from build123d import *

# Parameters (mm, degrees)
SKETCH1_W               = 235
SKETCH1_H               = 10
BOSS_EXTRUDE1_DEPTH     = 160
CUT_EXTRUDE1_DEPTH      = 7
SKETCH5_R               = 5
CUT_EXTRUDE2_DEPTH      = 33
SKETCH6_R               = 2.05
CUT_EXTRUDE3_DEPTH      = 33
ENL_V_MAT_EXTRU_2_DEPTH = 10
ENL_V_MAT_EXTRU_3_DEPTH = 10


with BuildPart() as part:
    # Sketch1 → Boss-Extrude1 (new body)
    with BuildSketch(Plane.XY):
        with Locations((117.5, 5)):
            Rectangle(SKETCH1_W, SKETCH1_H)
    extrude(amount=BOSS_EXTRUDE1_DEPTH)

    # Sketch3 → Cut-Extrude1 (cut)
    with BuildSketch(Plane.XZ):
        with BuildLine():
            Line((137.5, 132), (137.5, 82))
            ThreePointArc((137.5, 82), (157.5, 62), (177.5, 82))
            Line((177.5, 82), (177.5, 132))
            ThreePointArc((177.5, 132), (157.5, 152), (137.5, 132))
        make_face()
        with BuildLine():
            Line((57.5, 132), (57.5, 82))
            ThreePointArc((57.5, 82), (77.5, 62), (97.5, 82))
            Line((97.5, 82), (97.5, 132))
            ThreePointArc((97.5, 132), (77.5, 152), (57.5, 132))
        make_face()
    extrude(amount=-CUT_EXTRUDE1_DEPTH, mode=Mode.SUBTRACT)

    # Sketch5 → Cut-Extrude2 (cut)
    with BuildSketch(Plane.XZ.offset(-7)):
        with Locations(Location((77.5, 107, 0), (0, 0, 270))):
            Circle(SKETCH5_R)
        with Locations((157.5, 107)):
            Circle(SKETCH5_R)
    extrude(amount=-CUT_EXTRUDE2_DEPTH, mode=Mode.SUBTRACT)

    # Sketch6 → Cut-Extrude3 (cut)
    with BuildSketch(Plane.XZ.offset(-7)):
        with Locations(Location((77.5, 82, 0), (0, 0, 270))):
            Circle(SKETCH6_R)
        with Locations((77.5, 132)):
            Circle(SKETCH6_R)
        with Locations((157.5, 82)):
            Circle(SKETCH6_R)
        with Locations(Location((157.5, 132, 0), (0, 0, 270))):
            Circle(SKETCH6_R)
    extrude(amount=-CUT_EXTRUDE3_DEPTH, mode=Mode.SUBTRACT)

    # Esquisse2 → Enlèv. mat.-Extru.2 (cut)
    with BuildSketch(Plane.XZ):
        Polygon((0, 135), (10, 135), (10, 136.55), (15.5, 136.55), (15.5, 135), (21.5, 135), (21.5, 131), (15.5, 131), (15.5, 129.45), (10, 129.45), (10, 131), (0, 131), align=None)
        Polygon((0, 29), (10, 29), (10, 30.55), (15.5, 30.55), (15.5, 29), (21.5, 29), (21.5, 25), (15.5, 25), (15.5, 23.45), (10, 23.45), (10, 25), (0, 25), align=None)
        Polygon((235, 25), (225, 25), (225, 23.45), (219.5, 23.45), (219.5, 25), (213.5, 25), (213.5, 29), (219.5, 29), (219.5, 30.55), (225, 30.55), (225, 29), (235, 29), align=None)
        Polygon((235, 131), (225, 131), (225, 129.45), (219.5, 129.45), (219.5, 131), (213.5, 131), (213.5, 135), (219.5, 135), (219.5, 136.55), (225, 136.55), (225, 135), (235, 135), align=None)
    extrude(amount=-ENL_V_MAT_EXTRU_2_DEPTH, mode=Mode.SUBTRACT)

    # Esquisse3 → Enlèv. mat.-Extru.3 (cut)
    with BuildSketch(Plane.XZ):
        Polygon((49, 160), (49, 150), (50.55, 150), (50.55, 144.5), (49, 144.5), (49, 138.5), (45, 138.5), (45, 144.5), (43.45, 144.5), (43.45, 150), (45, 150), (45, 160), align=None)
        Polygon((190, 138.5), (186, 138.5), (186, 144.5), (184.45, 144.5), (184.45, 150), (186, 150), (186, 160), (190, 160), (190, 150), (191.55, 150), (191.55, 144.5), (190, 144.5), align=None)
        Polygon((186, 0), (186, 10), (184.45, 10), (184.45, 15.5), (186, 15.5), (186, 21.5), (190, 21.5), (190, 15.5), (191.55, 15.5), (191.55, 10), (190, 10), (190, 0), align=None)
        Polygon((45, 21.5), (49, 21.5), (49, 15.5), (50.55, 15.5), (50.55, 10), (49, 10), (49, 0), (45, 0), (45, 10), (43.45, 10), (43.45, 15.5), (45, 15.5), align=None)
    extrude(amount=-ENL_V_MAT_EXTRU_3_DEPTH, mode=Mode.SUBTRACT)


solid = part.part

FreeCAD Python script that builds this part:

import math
import FreeCAD as App
import Part
import Sketcher

V = App.Vector
Q = App.Units.Quantity


def add_polygon(sketch, points):
    """Adds a closed chain of lines whose ends are joined by coincident constraints."""
    first, n = sketch.GeometryCount, len(points)
    for a, b in zip(points, points[1:] + points[:1]):
        sketch.addGeometry(Part.LineSegment(App.Vector(*a, 0), App.Vector(*b, 0)), False)
    for i in range(n):
        sketch.addConstraint(Sketcher.Constraint("Coincident", first + i, 2, first + (i + 1) % n, 1))

doc = App.newDocument("Part")
body = doc.addObject("PartDesign::Body", "Body")

sketch1 = body.newObject("Sketcher::SketchObject", "Sketch")
sketch1.AttachmentSupport = (doc.getObject("XY_Plane"), [""])
sketch1.MapMode = "FlatFace"
add_polygon(sketch1, [(0, 10), (0, 0), (235, 0), (235, 10)])
sketch1.addConstraint([
    Sketcher.Constraint("Vertical", 0),
    Sketcher.Constraint("Horizontal", 1),
    Sketcher.Constraint("Vertical", 2),
    Sketcher.Constraint("Horizontal", 3),
    Sketcher.Constraint("Coincident", 0, 2, -1, 1),
    Sketcher.Constraint("DistanceX", 1, 1, 1, 2, Q("235 mm")),
    Sketcher.Constraint("DistanceY", 0, 2, 0, 1, Q("10 mm")),
])
pad1 = body.newObject("PartDesign::Pad", "Pad")
pad1.Profile = sketch1
pad1.Length = 160

sketch2 = body.newObject("Sketcher::SketchObject", "Sketch001")
sketch2.AttachmentSupport = (doc.getObject("XZ_Plane"), [""])
sketch2.MapMode = "FlatFace"
sketch2.addGeometry([
    Part.LineSegment(V(138, 132, 0), V(138, 82, 0)),
    Part.ArcOfCircle(Part.Circle(V(158, 82, 0), V(0, 0, 1), 20), math.radians(180), math.radians(360)),
    Part.LineSegment(V(178, 82, 0), V(178, 132, 0)),
    Part.ArcOfCircle(Part.Circle(V(158, 132, 0), V(0, 0, 1), 20), math.radians(0), math.radians(180)),
    Part.LineSegment(V(58, 132, 0), V(58, 82, 0)),
    Part.ArcOfCircle(Part.Circle(V(78, 82, 0), V(0, 0, 1), 20), math.radians(180), math.radians(360)),
    Part.LineSegment(V(98, 82, 0), V(98, 132, 0)),
    Part.ArcOfCircle(Part.Circle(V(78, 132, 0), V(0, 0, 1), 20), math.radians(0), math.radians(180)),
], False)
sketch2.addConstraint([
    Sketcher.Constraint("Tangent", 0, 2, 1, 1),
    Sketcher.Constraint("Tangent", 1, 2, 2, 1),
    Sketcher.Constraint("Tangent", 2, 2, 3, 1),
    Sketcher.Constraint("Tangent", 3, 2, 0, 1),
    Sketcher.Constraint("Tangent", 4, 2, 5, 1),
    Sketcher.Constraint("Tangent", 5, 2, 6, 1),
    Sketcher.Constraint("Tangent", 6, 2, 7, 1),
    Sketcher.Constraint("Tangent", 7, 2, 4, 1),
    Sketcher.Constraint("Vertical", 0),
    Sketcher.Constraint("Vertical", 2),
    Sketcher.Constraint("Vertical", 4),
    Sketcher.Constraint("Vertical", 6),
    Sketcher.Constraint("Equal", 3, 5),
    Sketcher.Constraint("Horizontal", 1, 3, 5, 3),
    Sketcher.Constraint("Horizontal", 3, 3, 7, 3),
    Sketcher.Constraint("Radius", 1, Q("20 mm")),
    Sketcher.Constraint("DistanceY", 0, 2, 0, 1, Q("50 mm")),
    Sketcher.Constraint("DistanceY", -1, 1, 1, 3, Q("82 mm")),
    Sketcher.Constraint("DistanceX", 5, 3, 1, 3, Q("80 mm")),
    Sketcher.Constraint("DistanceX", -1, 1, 1, 3, Q("157.5 mm")),
])
pocket1 = body.newObject("PartDesign::Pocket", "Pocket")
pocket1.Profile = sketch2
pocket1.Length = 7

sketch3 = body.newObject("Sketcher::SketchObject", "Sketch002")
sketch3.AttachmentSupport = (doc.getObject("XZ_Plane"), [""])
sketch3.MapMode = "FlatFace"
sketch3.AttachmentOffset = App.Placement(V(0, 0, -7), App.Rotation())
sketch3.addGeometry([
    Part.Circle(V(78, 107, 0), V(0, 0, 1), 5),
    Part.Circle(V(158, 107, 0), V(0, 0, 1), 5),
], False)
sketch3.addConstraint([
    Sketcher.Constraint("Equal", 0, 1),
    Sketcher.Constraint("Horizontal", 0, 3, 1, 3),
    Sketcher.Constraint("Diameter", 0, Q("10 mm")),
    Sketcher.Constraint("DistanceY", -1, 1, 0, 3, Q("107 mm")),
    Sketcher.Constraint("DistanceX", 0, 3, 1, 3, Q("80 mm")),
    Sketcher.Constraint("DistanceX", -1, 1, 0, 3, Q("77.5 mm")),
])
pocket2 = body.newObject("PartDesign::Pocket", "Pocket001")
pocket2.Profile = sketch3
pocket2.Length = 33

sketch4 = body.newObject("Sketcher::SketchObject", "Sketch003")
sketch4.AttachmentSupport = (doc.getObject("XZ_Plane"), [""])
sketch4.MapMode = "FlatFace"
sketch4.AttachmentOffset = App.Placement(V(0, 0, -7), App.Rotation())
sketch4.addGeometry([
    Part.Circle(V(77.5, 82, 0), V(0, 0, 1), 2),
    Part.Circle(V(77.5, 132, 0), V(0, 0, 1), 2),
    Part.Circle(V(157.5, 82, 0), V(0, 0, 1), 2),
    Part.Circle(V(157.5, 132, 0), V(0, 0, 1), 2),
], False)
sketch4.addConstraint([
    Sketcher.Constraint("Equal", 0, 1),
    Sketcher.Constraint("Equal", 1, 2),
    Sketcher.Constraint("Equal", 2, 3),
    Sketcher.Constraint("Horizontal", 0, 3, 2, 3),
    Sketcher.Constraint("Horizontal", 1, 3, 3, 3),
    Sketcher.Constraint("Vertical", 0, 3, 1, 3),
    Sketcher.Constraint("Vertical", 2, 3, 3, 3),
    Sketcher.Constraint("Diameter", 0, Q("4.1 mm")),
    Sketcher.Constraint("DistanceY", -1, 1, 0, 3, Q("82 mm")),
    Sketcher.Constraint("DistanceY", -1, 1, 1, 3, Q("132 mm")),
    Sketcher.Constraint("DistanceX", 0, 3, 2, 3, Q("80 mm")),
    Sketcher.Constraint("DistanceX", -1, 1, 0, 3, Q("77.5 mm")),
])
pocket3 = body.newObject("PartDesign::Pocket", "Pocket002")
pocket3.Profile = sketch4
pocket3.Length = 33

sketch5 = body.newObject("Sketcher::SketchObject", "Sketch004")
sketch5.AttachmentSupport = (doc.getObject("XZ_Plane"), [""])
sketch5.MapMode = "FlatFace"
add_polygon(sketch5, [(10, 135), (0, 135), (0, 131), (10, 131), (10, 129.4), (15.5, 129.4), (15.5, 131), (21.5, 131), (21.5, 135), (15.5, 135), (15.5, 136.6), (10, 136.6)])
add_polygon(sketch5, [(10, 29), (0, 29), (0, 25), (10, 25), (10, 23.4), (15.5, 23.4), (15.5, 25), (21.5, 25), (21.5, 29), (15.5, 29), (15.5, 30.6), (10, 30.6)])
add_polygon(sketch5, [(225, 25), (235, 25), (235, 29), (225, 29), (225, 30.6), (219.5, 30.6), (219.5, 29), (213.5, 29), (213.5, 25), (219.5, 25), (219.5, 23.4), (225, 23.4)])
add_polygon(sketch5, [(225, 131), (235, 131), (235, 135), (225, 135), (225, 136.6), (219.5, 136.6), (219.5, 135), (213.5, 135), (213.5, 131), (219.5, 131), (219.5, 129.4), (225, 129.4)])
sketch5.addConstraint([
    Sketcher.Constraint("Horizontal", 0),
    Sketcher.Constraint("Vertical", 1),
    Sketcher.Constraint("Horizontal", 2),
    Sketcher.Constraint("Vertical", 3),
    Sketcher.Constraint("Horizontal", 4),
    Sketcher.Constraint("Vertical", 5),
    Sketcher.Constraint("Horizontal", 6),
    Sketcher.Constraint("Vertical", 7),
    Sketcher.Constraint("Horizontal", 8),
    Sketcher.Constraint("Vertical", 9),
    Sketcher.Constraint("Horizontal", 10),
    Sketcher.Constraint("Vertical", 11),
    Sketcher.Constraint("Horizontal", 12),
    Sketcher.Constraint("Vertical", 13),
    Sketcher.Constraint("Horizontal", 14),
    Sketcher.Constraint("Vertical", 15),
    Sketcher.Constraint("Horizontal", 16),
    Sketcher.Constraint("Vertical", 17),
    Sketcher.Constraint("Horizontal", 18),
    Sketcher.Constraint("Vertical", 19),
    Sketcher.Constraint("Horizontal", 20),
    Sketcher.Constraint("Vertical", 21),
    Sketcher.Constraint("Horizontal", 22),
    Sketcher.Constraint("Vertical", 23),
    Sketcher.Constraint("Horizontal", 24),
    Sketcher.Constraint("Vertical", 25),
    Sketcher.Constraint("Horizontal", 26),
    Sketcher.Constraint("Vertical", 27),
    Sketcher.Constraint("Horizontal", 28),
    Sketcher.Constraint("Vertical", 29),
    Sketcher.Constraint("Horizontal", 30),
    Sketcher.Constraint("Vertical", 31),
    Sketcher.Constraint("Horizontal", 32),
    Sketcher.Constraint("Vertical", 33),
    Sketcher.Constraint("Horizontal", 34),
    Sketcher.Constraint("Vertical", 35),
    Sketcher.Constraint("Horizontal", 36),
    Sketcher.Constraint("Vertical", 37),
    Sketcher.Constraint("Horizontal", 38),
    Sketcher.Constraint("Vertical", 39),
    Sketcher.Constraint("Horizontal", 40),
    Sketcher.Constraint("Vertical", 41),
    Sketcher.Constraint("Horizontal", 42),
    Sketcher.Constraint("Vertical", 43),
    Sketcher.Constraint("Horizontal", 44),
    Sketcher.Constraint("Vertical", 45),
    Sketcher.Constraint("Horizontal", 46),
    Sketcher.Constraint("Vertical", 47),
    Sketcher.Constraint("PointOnObject", 0, 2, -2),
    Sketcher.Constraint("PointOnObject", 12, 2, -2),
    Sketcher.Constraint("Horizontal", 2, 2, 5, 2),
    Sketcher.Constraint("Horizontal", 0, 2, 7, 2),
    Sketcher.Constraint("Horizontal", 14, 2, 17, 2),
    Sketcher.Constraint("Horizontal", 12, 2, 19, 2),
    Sketcher.Constraint("Horizontal", 18, 2, 24, 2),
    Sketcher.Constraint("Horizontal", 23, 2, 25, 2),
    Sketcher.Constraint("Horizontal", 22, 2, 27, 2),
    Sketcher.Constraint("Horizontal", 26, 2, 29, 2),
    Sketcher.Constraint("Horizontal", 24, 2, 31, 2),
    Sketcher.Constraint("Horizontal", 16, 2, 33, 2),
    Sketcher.Constraint("Horizontal", 6, 2, 36, 2),
    Sketcher.Constraint("Horizontal", 11, 2, 37, 2),
    Sketcher.Constraint("Horizontal", 10, 2, 39, 2),
    Sketcher.Constraint("Horizontal", 38, 2, 41, 2),
    Sketcher.Constraint("Horizontal", 36, 2, 43, 2),
    Sketcher.Constraint("Horizontal", 4, 2, 45, 2),
    Sketcher.Constraint("Vertical", 5, 2, 8, 2),
    Sketcher.Constraint("Vertical", 3, 2, 10, 2),
    Sketcher.Constraint("Vertical", 11, 2, 14, 2),
    Sketcher.Constraint("Vertical", 9, 2, 16, 2),
    Sketcher.Constraint("Vertical", 7, 2, 18, 2),
    Sketcher.Constraint("Vertical", 17, 2, 20, 2),
    Sketcher.Constraint("Vertical", 15, 2, 22, 2),
    Sketcher.Constraint("Vertical", 29, 2, 32, 2),
    Sketcher.Constraint("Vertical", 27, 2, 34, 2),
    Sketcher.Constraint("Vertical", 25, 2, 36, 2),
    Sketcher.Constraint("Vertical", 35, 2, 38, 2),
    Sketcher.Constraint("Vertical", 33, 2, 40, 2),
    Sketcher.Constraint("Vertical", 31, 2, 42, 2),
    Sketcher.Constraint("Vertical", 41, 2, 44, 2),
    Sketcher.Constraint("Vertical", 39, 2, 46, 2),
    Sketcher.Constraint("Equal", 14, 24),
    Sketcher.Constraint("Equal", 22, 28),
    Sketcher.Constraint("Equal", 20, 30),
    Sketcher.Constraint("Equal", 5, 9),
    Sketcher.Constraint("Equal", 7, 13),
    Sketcher.Constraint("Equal", 11, 15),
    Sketcher.Constraint("Equal", 17, 21),
    Sketcher.Constraint("DistanceX", 0, 2, 0, 1, Q("10 mm")),
    Sketcher.Constraint("DistanceX", 6, 1, 6, 2, Q("6 mm")),
    Sketcher.Constraint("DistanceY", 1, 2, 1, 1, Q("4 mm")),
    Sketcher.Constraint("DistanceX", 4, 1, 4, 2, Q("5.5 mm")),
    Sketcher.Constraint("DistanceY", -1, 1, 0, 2, Q("135 mm")),
    Sketcher.Constraint("DistanceY", -1, 1, 12, 2, Q("29 mm")),
    Sketcher.Constraint("DistanceX", -1, 1, 24, 2, Q("235 mm")),
    Sketcher.Constraint("DistanceY", 3, 2, 3, 1, Q("1.55 mm")),
])
pocket4 = body.newObject("PartDesign::Pocket", "Pocket003")
pocket4.Profile = sketch5
pocket4.Length = 10

sketch6 = body.newObject("Sketcher::SketchObject", "Sketch005")
sketch6.AttachmentSupport = (doc.getObject("XZ_Plane"), [""])
sketch6.MapMode = "FlatFace"
add_polygon(sketch6, [(49, 150), (49, 160), (45, 160), (45, 150), (43.5, 150), (43.5, 144.5), (45, 144.5), (45, 138.5), (49, 138.5), (49, 144.5), (50.5, 144.5), (50.5, 150)])
add_polygon(sketch6, [(186, 138.5), (190, 138.5), (190, 144.5), (191.6, 144.5), (191.6, 150), (190, 150), (190, 160), (186, 160), (186, 150), (184.4, 150), (184.4, 144.5), (186, 144.5)])
add_polygon(sketch6, [(186, 10), (186, 0), (190, 0), (190, 10), (191.6, 10), (191.6, 15.5), (190, 15.5), (190, 21.5), (186, 21.5), (186, 15.5), (184.4, 15.5), (184.4, 10)])
add_polygon(sketch6, [(49, 21.5), (45, 21.5), (45, 15.5), (43.5, 15.5), (43.5, 10), (45, 10), (45, 0), (49, 0), (49, 10), (50.5, 10), (50.5, 15.5), (49, 15.5)])
sketch6.addConstraint([
    Sketcher.Constraint("Vertical", 0),
    Sketcher.Constraint("Horizontal", 1),
    Sketcher.Constraint("Vertical", 2),
    Sketcher.Constraint("Horizontal", 3),
    Sketcher.Constraint("Vertical", 4),
    Sketcher.Constraint("Horizontal", 5),
    Sketcher.Constraint("Vertical", 6),
    Sketcher.Constraint("Horizontal", 7),
    Sketcher.Constraint("Vertical", 8),
    Sketcher.Constraint("Horizontal", 9),
    Sketcher.Constraint("Vertical", 10),
    Sketcher.Constraint("Horizontal", 11),
    Sketcher.Constraint("Horizontal", 12),
    Sketcher.Constraint("Vertical", 13),
    Sketcher.Constraint("Horizontal", 14),
    Sketcher.Constraint("Vertical", 15),
    Sketcher.Constraint("Horizontal", 16),
    Sketcher.Constraint("Vertical", 17),
    Sketcher.Constraint("Horizontal", 18),
    Sketcher.Constraint("Vertical", 19),
    Sketcher.Constraint("Horizontal", 20),
    Sketcher.Constraint("Vertical", 21),
    Sketcher.Constraint("Horizontal", 22),
    Sketcher.Constraint("Vertical", 23),
    Sketcher.Constraint("Vertical", 24),
    Sketcher.Constraint("Horizontal", 25),
    Sketcher.Constraint("Vertical", 26),
    Sketcher.Constraint("Horizontal", 27),
    Sketcher.Constraint("Vertical", 28),
    Sketcher.Constraint("Horizontal", 29),
    Sketcher.Constraint("Vertical", 30),
    Sketcher.Constraint("Horizontal", 31),
    Sketcher.Constraint("Vertical", 32),
    Sketcher.Constraint("Horizontal", 33),
    Sketcher.Constraint("Vertical", 34),
    Sketcher.Constraint("Horizontal", 35),
    Sketcher.Constraint("Horizontal", 36),
    Sketcher.Constraint("Vertical", 37),
    Sketcher.Constraint("Horizontal", 38),
    Sketcher.Constraint("Vertical", 39),
    Sketcher.Constraint("Horizontal", 40),
    Sketcher.Constraint("Vertical", 41),
    Sketcher.Constraint("Horizontal", 42),
    Sketcher.Constraint("Vertical", 43),
    Sketcher.Constraint("Horizontal", 44),
    Sketcher.Constraint("Vertical", 45),
    Sketcher.Constraint("Horizontal", 46),
    Sketcher.Constraint("Vertical", 47),
    Sketcher.Constraint("PointOnObject", 24, 2, -1),
    Sketcher.Constraint("PointOnObject", 41, 2, -1),
    Sketcher.Constraint("Horizontal", 5, 2, 8, 2),
    Sketcher.Constraint("Horizontal", 3, 2, 10, 2),
    Sketcher.Constraint("Horizontal", 7, 2, 12, 2),
    Sketcher.Constraint("Horizontal", 9, 2, 13, 2),
    Sketcher.Constraint("Horizontal", 11, 2, 15, 2),
    Sketcher.Constraint("Horizontal", 1, 2, 17, 2),
    Sketcher.Constraint("Horizontal", 16, 2, 19, 2),
    Sketcher.Constraint("Horizontal", 14, 2, 21, 2),
    Sketcher.Constraint("Horizontal", 29, 2, 32, 2),
    Sketcher.Constraint("Horizontal", 27, 2, 34, 2),
    Sketcher.Constraint("Horizontal", 31, 2, 36, 2),
    Sketcher.Constraint("Horizontal", 33, 2, 37, 2),
    Sketcher.Constraint("Horizontal", 35, 2, 39, 2),
    Sketcher.Constraint("Horizontal", 40, 2, 43, 2),
    Sketcher.Constraint("Horizontal", 38, 2, 45, 2),
    Sketcher.Constraint("Vertical", 2, 2, 5, 2),
    Sketcher.Constraint("Vertical", 0, 2, 7, 2),
    Sketcher.Constraint("Vertical", 13, 2, 16, 2),
    Sketcher.Constraint("Vertical", 19, 2, 22, 2),
    Sketcher.Constraint("Vertical", 23, 2, 24, 2),
    Sketcher.Constraint("Vertical", 17, 2, 25, 2),
    Sketcher.Constraint("Vertical", 15, 2, 27, 2),
    Sketcher.Constraint("Vertical", 26, 2, 29, 2),
    Sketcher.Constraint("Vertical", 24, 2, 31, 2),
    Sketcher.Constraint("Vertical", 21, 2, 33, 2),
    Sketcher.Constraint("Vertical", 6, 2, 36, 2),
    Sketcher.Constraint("Vertical", 4, 2, 38, 2),
    Sketcher.Constraint("Vertical", 37, 2, 40, 2),
    Sketcher.Constraint("Vertical", 11, 2, 42, 2),
    Sketcher.Constraint("Vertical", 10, 2, 44, 2),
    Sketcher.Constraint("Vertical", 43, 2, 46, 2),
    Sketcher.Constraint("Equal", 5, 9),
    Sketcher.Constraint("Equal", 7, 12),
    Sketcher.Constraint("Equal", 11, 14),
    Sketcher.Constraint("Equal", 16, 20),
    Sketcher.Constraint("Equal", 19, 24),
    Sketcher.Constraint("Equal", 21, 28),
    Sketcher.Constraint("Equal", 23, 30),
    Sketcher.Constraint("DistanceX", 1, 2, 1, 1, Q("4 mm")),
    Sketcher.Constraint("DistanceY", 0, 1, 0, 2, Q("10 mm")),
    Sketcher.Constraint("DistanceY", 6, 2, 6, 1, Q("6 mm")),
    Sketcher.Constraint("DistanceY", 4, 2, 4, 1, Q("5.5 mm")),
    Sketcher.Constraint("DistanceX", -1, 1, 0, 2, Q("49 mm")),
    Sketcher.Constraint("DistanceY", -1, 1, 0, 2, Q("160 mm")),
    Sketcher.Constraint("DistanceX", -1, 1, 12, 2, Q("190 mm")),
    Sketcher.Constraint("DistanceX", 3, 2, 3, 1, Q("1.55 mm")),
])
pocket5 = body.newObject("PartDesign::Pocket", "Pocket004")
pocket5.Profile = sketch6
pocket5.Length = 10

doc.recompute()
